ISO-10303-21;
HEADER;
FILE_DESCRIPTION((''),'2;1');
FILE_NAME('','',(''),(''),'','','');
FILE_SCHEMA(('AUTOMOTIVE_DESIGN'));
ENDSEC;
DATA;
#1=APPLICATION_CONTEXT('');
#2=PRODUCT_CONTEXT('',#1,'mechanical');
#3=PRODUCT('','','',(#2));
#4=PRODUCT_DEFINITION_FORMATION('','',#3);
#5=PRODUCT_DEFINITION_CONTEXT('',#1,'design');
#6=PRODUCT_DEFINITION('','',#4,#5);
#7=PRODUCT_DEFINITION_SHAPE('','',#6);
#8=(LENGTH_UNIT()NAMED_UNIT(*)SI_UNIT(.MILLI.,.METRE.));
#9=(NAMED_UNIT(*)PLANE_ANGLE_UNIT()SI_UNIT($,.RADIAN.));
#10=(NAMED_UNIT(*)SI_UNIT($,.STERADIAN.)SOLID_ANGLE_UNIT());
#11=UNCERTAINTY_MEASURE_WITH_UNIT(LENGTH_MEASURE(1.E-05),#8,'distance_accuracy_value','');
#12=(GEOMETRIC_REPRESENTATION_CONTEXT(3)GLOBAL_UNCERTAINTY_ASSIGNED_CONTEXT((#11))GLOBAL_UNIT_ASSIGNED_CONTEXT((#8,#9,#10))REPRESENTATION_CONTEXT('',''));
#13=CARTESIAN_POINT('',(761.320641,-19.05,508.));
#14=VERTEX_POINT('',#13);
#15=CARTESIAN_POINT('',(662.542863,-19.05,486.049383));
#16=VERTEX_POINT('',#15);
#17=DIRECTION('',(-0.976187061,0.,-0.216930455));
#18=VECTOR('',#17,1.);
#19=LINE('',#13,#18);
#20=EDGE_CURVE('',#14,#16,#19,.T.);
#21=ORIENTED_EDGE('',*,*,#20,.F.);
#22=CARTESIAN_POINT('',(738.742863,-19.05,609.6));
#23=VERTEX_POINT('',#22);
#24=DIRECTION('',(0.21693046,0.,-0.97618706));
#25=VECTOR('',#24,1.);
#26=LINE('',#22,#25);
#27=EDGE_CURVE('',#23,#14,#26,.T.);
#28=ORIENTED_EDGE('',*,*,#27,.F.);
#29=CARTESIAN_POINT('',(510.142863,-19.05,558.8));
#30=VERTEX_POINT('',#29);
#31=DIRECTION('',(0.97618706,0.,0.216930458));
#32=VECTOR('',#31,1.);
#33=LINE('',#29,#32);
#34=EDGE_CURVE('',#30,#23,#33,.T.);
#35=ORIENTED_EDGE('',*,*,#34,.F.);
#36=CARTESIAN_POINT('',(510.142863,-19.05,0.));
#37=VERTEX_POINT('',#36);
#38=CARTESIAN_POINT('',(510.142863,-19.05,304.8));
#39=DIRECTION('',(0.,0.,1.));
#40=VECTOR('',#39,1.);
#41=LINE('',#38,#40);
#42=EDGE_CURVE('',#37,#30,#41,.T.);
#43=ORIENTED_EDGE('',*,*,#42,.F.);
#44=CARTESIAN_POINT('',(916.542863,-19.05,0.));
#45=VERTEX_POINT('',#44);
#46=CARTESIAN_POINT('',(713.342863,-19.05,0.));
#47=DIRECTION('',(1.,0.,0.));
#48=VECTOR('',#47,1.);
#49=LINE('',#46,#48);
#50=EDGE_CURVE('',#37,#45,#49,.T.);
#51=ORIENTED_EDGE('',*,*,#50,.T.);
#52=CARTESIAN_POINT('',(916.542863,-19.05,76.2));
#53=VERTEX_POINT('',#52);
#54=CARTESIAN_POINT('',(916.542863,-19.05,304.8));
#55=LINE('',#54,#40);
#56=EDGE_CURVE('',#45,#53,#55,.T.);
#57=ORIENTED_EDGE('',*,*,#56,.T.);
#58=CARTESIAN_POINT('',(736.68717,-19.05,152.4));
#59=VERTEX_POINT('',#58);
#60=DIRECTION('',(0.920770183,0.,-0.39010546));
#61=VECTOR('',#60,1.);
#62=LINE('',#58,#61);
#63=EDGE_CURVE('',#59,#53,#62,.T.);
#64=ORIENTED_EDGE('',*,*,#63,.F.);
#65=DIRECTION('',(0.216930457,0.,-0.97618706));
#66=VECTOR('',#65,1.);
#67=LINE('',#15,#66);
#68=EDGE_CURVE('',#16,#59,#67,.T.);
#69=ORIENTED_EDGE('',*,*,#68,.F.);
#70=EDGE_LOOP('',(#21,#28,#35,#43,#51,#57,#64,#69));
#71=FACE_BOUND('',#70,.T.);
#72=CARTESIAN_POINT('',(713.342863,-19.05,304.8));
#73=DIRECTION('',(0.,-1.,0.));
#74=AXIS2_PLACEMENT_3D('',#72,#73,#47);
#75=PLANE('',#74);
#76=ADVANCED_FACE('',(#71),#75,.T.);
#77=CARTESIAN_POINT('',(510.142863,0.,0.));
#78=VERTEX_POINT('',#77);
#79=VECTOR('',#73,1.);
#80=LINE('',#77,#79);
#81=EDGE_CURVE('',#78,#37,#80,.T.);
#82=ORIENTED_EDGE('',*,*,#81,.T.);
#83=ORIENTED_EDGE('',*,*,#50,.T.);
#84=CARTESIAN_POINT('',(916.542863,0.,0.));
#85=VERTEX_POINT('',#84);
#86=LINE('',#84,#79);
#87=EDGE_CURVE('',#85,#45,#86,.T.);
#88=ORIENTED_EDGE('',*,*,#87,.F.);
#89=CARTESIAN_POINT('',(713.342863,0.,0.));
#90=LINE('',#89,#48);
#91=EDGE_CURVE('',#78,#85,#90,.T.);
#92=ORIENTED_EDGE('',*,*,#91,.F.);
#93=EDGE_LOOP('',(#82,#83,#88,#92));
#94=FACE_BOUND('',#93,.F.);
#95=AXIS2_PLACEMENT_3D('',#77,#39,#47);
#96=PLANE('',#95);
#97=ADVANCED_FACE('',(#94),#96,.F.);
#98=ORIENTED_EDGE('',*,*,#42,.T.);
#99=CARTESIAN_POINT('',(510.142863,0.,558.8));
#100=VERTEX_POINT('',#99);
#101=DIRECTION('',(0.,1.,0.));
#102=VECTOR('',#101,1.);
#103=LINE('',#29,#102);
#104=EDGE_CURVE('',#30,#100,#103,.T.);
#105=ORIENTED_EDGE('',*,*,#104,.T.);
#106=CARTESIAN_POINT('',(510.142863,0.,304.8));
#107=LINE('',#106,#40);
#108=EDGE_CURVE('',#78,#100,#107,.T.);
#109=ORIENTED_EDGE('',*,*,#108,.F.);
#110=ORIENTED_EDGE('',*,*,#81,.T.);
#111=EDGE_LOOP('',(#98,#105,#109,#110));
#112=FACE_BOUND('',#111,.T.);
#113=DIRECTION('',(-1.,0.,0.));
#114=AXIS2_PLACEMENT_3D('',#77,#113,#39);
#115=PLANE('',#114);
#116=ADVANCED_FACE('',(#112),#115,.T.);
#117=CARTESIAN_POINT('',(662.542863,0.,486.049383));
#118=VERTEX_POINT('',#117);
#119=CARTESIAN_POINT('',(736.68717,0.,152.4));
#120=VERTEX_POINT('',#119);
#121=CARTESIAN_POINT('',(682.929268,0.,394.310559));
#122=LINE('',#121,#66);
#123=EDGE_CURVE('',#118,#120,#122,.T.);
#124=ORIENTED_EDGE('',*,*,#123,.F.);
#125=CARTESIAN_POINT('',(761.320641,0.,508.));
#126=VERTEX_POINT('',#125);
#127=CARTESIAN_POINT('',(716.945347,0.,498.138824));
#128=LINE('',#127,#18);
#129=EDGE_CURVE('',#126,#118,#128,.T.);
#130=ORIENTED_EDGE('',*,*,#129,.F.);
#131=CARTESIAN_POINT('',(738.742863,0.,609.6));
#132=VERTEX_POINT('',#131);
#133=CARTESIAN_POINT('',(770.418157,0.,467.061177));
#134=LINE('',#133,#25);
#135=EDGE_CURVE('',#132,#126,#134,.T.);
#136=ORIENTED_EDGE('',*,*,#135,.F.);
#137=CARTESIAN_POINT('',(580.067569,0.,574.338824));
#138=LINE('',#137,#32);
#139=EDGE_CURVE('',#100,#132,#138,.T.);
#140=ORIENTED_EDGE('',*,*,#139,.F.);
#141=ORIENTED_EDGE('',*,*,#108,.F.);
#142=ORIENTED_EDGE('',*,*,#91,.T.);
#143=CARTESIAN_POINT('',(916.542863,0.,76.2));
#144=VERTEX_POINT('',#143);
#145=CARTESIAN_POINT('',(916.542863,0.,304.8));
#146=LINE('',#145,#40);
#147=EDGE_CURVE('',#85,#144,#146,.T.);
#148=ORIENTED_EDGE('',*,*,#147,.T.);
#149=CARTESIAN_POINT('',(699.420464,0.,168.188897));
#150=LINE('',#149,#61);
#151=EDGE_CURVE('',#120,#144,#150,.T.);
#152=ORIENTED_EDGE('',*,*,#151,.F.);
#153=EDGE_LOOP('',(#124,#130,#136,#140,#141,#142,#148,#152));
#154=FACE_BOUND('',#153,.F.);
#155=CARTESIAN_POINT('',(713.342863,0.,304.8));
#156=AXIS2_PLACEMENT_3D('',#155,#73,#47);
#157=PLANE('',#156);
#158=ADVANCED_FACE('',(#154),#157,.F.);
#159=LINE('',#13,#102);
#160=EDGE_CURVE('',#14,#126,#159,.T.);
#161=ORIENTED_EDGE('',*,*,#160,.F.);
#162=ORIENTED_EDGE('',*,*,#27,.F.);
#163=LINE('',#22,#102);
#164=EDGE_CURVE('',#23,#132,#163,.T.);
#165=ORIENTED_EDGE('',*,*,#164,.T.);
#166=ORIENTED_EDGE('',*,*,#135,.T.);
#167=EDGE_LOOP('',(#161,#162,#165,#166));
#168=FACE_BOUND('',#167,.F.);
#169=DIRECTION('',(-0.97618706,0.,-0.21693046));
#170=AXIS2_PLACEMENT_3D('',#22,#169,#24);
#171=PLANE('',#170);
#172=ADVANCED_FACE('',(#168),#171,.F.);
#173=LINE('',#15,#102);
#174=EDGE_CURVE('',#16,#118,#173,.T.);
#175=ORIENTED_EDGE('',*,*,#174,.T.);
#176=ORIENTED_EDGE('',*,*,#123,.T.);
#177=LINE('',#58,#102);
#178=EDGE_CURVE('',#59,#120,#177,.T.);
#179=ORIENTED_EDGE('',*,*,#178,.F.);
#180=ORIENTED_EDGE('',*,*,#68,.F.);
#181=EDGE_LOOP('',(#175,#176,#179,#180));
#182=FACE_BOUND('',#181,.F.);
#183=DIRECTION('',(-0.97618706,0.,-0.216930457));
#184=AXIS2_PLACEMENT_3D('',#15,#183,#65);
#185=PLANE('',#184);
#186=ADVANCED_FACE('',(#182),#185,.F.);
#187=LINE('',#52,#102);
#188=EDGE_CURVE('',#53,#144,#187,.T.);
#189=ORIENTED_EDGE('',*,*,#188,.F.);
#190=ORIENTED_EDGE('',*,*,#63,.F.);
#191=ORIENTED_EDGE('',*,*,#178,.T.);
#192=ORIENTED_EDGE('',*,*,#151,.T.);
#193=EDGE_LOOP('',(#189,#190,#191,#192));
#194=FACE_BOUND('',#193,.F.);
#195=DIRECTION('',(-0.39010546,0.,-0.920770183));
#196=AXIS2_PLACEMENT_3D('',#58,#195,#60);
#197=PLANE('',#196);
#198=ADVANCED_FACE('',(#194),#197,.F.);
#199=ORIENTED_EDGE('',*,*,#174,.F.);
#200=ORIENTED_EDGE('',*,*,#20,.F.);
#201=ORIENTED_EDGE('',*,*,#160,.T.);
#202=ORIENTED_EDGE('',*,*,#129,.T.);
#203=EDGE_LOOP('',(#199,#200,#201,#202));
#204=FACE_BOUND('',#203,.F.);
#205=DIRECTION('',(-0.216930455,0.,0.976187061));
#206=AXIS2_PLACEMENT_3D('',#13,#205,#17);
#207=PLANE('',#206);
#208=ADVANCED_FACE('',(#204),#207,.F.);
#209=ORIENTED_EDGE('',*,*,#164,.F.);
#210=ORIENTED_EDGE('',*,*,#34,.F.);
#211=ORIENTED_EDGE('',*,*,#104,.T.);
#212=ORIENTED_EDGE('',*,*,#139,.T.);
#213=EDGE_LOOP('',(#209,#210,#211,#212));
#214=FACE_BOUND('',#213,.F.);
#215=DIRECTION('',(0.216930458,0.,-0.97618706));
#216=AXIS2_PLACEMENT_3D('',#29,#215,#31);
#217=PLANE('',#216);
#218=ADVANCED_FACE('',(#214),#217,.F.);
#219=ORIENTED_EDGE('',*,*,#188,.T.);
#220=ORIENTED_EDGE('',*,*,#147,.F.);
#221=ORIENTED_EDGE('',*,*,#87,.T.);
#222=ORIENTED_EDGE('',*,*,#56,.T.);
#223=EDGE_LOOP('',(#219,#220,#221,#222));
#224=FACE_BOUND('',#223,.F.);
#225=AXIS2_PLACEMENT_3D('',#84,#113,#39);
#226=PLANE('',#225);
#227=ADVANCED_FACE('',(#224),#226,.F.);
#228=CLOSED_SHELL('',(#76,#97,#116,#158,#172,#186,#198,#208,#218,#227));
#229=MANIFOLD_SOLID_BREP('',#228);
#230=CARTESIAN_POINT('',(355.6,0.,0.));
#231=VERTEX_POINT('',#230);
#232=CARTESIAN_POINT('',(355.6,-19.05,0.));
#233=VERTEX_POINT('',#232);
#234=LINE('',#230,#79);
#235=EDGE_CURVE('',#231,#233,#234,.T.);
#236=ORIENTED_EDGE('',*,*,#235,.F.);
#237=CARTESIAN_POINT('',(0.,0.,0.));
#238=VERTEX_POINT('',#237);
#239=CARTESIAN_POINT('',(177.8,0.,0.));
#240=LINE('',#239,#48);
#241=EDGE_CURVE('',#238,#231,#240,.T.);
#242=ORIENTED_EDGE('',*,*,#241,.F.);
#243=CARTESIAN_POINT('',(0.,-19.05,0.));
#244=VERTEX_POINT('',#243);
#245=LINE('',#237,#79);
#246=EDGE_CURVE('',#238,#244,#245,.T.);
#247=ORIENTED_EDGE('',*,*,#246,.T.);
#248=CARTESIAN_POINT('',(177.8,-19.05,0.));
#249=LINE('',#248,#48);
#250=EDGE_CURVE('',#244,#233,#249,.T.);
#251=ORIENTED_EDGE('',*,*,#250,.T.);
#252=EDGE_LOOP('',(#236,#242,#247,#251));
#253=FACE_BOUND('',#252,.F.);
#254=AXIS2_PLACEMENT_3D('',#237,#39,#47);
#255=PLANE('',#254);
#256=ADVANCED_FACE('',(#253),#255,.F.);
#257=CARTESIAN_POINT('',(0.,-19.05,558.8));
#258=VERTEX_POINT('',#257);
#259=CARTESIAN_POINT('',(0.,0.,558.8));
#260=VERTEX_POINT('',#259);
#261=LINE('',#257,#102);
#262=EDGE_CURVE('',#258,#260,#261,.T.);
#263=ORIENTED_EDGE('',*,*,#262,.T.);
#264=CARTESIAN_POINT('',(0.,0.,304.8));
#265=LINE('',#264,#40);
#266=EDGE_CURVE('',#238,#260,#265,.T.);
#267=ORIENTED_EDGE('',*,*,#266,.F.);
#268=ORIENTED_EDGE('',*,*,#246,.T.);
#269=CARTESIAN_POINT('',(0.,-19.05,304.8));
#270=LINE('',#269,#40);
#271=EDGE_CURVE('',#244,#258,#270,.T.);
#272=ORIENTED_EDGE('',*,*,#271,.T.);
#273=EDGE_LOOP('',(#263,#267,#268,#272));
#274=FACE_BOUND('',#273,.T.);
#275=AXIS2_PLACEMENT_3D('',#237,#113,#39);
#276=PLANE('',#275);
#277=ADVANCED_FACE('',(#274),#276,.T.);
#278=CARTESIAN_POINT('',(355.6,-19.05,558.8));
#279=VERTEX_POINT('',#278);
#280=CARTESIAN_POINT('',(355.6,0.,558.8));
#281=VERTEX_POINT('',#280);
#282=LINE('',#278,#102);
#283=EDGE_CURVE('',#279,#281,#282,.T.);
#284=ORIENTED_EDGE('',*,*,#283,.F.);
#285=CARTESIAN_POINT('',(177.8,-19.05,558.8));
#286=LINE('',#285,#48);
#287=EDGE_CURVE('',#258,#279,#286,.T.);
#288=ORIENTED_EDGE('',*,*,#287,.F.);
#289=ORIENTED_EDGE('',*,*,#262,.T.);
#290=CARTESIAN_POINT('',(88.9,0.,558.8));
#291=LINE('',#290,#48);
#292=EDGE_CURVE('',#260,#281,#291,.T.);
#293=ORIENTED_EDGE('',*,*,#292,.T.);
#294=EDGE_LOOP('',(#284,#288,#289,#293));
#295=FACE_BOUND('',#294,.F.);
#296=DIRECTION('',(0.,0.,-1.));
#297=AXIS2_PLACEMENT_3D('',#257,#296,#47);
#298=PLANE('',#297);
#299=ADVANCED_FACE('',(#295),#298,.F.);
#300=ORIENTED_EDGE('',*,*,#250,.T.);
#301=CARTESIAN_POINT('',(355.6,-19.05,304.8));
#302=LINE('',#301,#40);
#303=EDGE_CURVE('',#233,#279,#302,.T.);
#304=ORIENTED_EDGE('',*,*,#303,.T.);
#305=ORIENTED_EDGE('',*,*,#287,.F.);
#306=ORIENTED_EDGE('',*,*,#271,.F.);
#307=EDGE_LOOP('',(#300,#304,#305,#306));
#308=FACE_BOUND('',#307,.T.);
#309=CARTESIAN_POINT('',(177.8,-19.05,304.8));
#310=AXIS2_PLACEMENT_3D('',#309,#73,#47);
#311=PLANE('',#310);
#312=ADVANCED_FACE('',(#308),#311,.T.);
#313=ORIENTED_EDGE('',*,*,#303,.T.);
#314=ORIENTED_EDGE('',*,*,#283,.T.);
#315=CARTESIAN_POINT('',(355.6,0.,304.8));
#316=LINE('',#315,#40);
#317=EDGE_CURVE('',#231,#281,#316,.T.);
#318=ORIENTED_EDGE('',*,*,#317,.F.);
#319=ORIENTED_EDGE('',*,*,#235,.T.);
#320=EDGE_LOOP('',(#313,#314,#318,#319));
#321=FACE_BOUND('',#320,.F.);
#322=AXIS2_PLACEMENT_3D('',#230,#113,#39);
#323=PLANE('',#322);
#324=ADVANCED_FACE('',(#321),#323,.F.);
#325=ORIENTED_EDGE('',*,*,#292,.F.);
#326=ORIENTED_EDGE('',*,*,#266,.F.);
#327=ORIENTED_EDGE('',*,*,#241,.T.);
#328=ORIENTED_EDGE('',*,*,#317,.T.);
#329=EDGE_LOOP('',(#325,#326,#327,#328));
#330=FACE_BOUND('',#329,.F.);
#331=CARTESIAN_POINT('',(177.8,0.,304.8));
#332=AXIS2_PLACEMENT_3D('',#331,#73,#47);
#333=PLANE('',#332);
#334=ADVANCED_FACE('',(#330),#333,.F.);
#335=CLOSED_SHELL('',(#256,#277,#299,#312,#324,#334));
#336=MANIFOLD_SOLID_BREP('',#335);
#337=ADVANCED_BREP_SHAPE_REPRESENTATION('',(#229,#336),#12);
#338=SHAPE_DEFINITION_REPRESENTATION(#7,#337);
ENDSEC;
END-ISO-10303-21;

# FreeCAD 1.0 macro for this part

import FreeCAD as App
import Part
import Sketcher
Q = App.Units.Quantity


def add_polygon(sketch, points):
    """Adds a closed chain of lines whose ends are joined by coincident constraints."""
    first, n = sketch.GeometryCount, len(points)
    for a, b in zip(points, points[1:] + points[:1]):
        sketch.addGeometry(Part.LineSegment(App.Vector(*a, 0), App.Vector(*b, 0)), False)
    for i in range(n):
        sketch.addConstraint(Sketcher.Constraint("Coincident", first + i, 2, first + (i + 1) % n, 1))

doc = App.newDocument("Part")
body = doc.addObject("PartDesign::Body", "Body")

sketch1 = body.newObject("Sketcher::SketchObject", "Sketch")
sketch1.AttachmentSupport = (doc.getObject("XZ_Plane"), [""])
sketch1.MapMode = "FlatFace"
add_polygon(sketch1, [(0, 609.6), (0, 0), (355.6, 0), (355.6, 609.6)])
sketch1.addConstraint(Sketcher.Constraint("Vertical", 0))
sketch1.addConstraint(Sketcher.Constraint("Horizontal", 1))
sketch1.addConstraint(Sketcher.Constraint("Vertical", 2))
sketch1.addConstraint(Sketcher.Constraint("Horizontal", 3))
sketch1.addConstraint(Sketcher.Constraint("Coincident", 0, 2, -1, 1))
sketch1.addConstraint(Sketcher.Constraint("DistanceX", 1, 1, 1, 2, Q("14 in")))
sketch1.addConstraint(Sketcher.Constraint("DistanceY", 0, 2, 0, 1, Q("24 in")))
pad1 = body.newObject("PartDesign::Pad", "Pad")
pad1.Profile = sketch1
pad1.Length = Q("0.75 in")

sketch2 = body.newObject("Sketcher::SketchObject", "Sketch001")
sketch2.AttachmentSupport = (doc.getObject("XZ_Plane"), [""])
sketch2.MapMode = "FlatFace"
sketch2.AttachmentOffset = App.Placement(App.Vector(0, 0, 0.75 * 25.4), App.Rotation())
add_polygon(sketch2, [(0, 609.6), (0, 558.8), (355.6, 558.8), (355.6, 609.6)])
sketch2.addConstraint(Sketcher.Constraint("Vertical", 0))
sketch2.addConstraint(Sketcher.Constraint("Horizontal", 1))
sketch2.addConstraint(Sketcher.Constraint("Vertical", 2))
sketch2.addConstraint(Sketcher.Constraint("Horizontal", 3))
sketch2.addConstraint(Sketcher.Constraint("PointOnObject", 0, 2, -2))
sketch2.addConstraint(Sketcher.Constraint("DistanceX", 1, 1, 1, 2, Q("14 in")))
sketch2.addConstraint(Sketcher.Constraint("DistanceY", 0, 2, 0, 1, Q("2 in")))
sketch2.addConstraint(Sketcher.Constraint("DistanceY", -1, 1, 0, 2, Q("22 in")))
pocket1 = body.newObject("PartDesign::Pocket", "Pocket")
pocket1.Profile = sketch2
pocket1.Type = "ThroughAll"
body2 = doc.addObject("PartDesign::Body", "Body001")

sketch3 = body2.newObject("Sketcher::SketchObject", "Sketch002")
sketch3.AttachmentSupport = (doc.getObject("XZ_Plane001"), [""])
sketch3.MapMode = "FlatFace"
add_polygon(sketch3, [(510.142863, 609.6), (510.142863, 0), (916.542863, 0), (916.542863, 609.6)])
sketch3.addConstraint(Sketcher.Constraint("Vertical", 0))
sketch3.addConstraint(Sketcher.Constraint("Horizontal", 1))
sketch3.addConstraint(Sketcher.Constraint("Vertical", 2))
sketch3.addConstraint(Sketcher.Constraint("Horizontal", 3))
sketch3.addConstraint(Sketcher.Constraint("PointOnObject", 0, 2, -1))
sketch3.addConstraint(Sketcher.Constraint("DistanceX", 1, 1, 1, 2, Q("16 in")))
sketch3.addConstraint(Sketcher.Constraint("DistanceY", 0, 2, 0, 1, Q("24 in")))
sketch3.addConstraint(Sketcher.Constraint("DistanceX", -1, 1, 0, 2, 510.142863))
pad2 = body2.newObject("PartDesign::Pad", "Pad001")
pad2.Profile = sketch3
pad2.Length = Q("0.75 in")

sketch4 = body2.newObject("Sketcher::SketchObject", "Sketch003")
sketch4.AttachmentSupport = (doc.getObject("XZ_Plane001"), [""])
sketch4.MapMode = "FlatFace"
sketch4.AttachmentOffset = App.Placement(App.Vector(0, 0, 0.75 * 25.4), App.Rotation())
add_polygon(sketch4, [(916.542863, 609.6), (738.742863, 609.6), (761.320641, 508), (662.542863, 486.049383), (736.68717, 152.4), (916.542863, 76.2)])
add_polygon(sketch4, [(510.142863, 558.8), (738.742863, 609.6), (510.142863, 609.6)])
sketch4.addConstraint(Sketcher.Constraint("Horizontal", 0))
sketch4.addConstraint(Sketcher.Constraint("Vertical", 5))
sketch4.addConstraint(Sketcher.Constraint("Horizontal", 7))
sketch4.addConstraint(Sketcher.Constraint("Vertical", 8))
sketch4.addConstraint(Sketcher.Constraint("Coincident", 6, 2, 0, 2))
sketch4.addConstraint(Sketcher.Constraint("Perpendicular", 1, 2))
sketch4.addConstraint(Sketcher.Constraint("Perpendicular", 2, 3))
sketch4.addConstraint(Sketcher.Constraint("Perpendicular", 3, 6))
sketch4.addConstraint(Sketcher.Constraint("DistanceX", 0, 2, 0, 1, Q("7 in")))
sketch4.addConstraint(Sketcher.Constraint("DistanceX", 7, 2, 7, 1, Q("9 in")))
sketch4.addConstraint(Sketcher.Constraint("DistanceY", 5, 1, 5, 2, Q("21 in")))
sketch4.addConstraint(Sketcher.Constraint("DistanceY", 8, 2, 8, 1, Q("2 in")))
sketch4.addConstraint(Sketcher.Constraint("DistanceY", -1, 1, 0, 2, Q("24 in")))
sketch4.addConstraint(Sketcher.Constraint("DistanceY", -1, 1, 1, 2, Q("20 in")))
sketch4.addConstraint(Sketcher.Constraint("DistanceY", -1, 1, 3, 2, Q("6 in")))
sketch4.addConstraint(Sketcher.Constraint("DistanceX", 2, 2, 0, 2, Q("3 in")))
sketch4.addConstraint(Sketcher.Constraint("DistanceX", -1, 1, 1, 2, 761.320641))
pocket2 = body2.newObject("PartDesign::Pocket", "Pocket001")
pocket2.Profile = sketch4
pocket2.Type = "ThroughAll"

doc.recompute()
